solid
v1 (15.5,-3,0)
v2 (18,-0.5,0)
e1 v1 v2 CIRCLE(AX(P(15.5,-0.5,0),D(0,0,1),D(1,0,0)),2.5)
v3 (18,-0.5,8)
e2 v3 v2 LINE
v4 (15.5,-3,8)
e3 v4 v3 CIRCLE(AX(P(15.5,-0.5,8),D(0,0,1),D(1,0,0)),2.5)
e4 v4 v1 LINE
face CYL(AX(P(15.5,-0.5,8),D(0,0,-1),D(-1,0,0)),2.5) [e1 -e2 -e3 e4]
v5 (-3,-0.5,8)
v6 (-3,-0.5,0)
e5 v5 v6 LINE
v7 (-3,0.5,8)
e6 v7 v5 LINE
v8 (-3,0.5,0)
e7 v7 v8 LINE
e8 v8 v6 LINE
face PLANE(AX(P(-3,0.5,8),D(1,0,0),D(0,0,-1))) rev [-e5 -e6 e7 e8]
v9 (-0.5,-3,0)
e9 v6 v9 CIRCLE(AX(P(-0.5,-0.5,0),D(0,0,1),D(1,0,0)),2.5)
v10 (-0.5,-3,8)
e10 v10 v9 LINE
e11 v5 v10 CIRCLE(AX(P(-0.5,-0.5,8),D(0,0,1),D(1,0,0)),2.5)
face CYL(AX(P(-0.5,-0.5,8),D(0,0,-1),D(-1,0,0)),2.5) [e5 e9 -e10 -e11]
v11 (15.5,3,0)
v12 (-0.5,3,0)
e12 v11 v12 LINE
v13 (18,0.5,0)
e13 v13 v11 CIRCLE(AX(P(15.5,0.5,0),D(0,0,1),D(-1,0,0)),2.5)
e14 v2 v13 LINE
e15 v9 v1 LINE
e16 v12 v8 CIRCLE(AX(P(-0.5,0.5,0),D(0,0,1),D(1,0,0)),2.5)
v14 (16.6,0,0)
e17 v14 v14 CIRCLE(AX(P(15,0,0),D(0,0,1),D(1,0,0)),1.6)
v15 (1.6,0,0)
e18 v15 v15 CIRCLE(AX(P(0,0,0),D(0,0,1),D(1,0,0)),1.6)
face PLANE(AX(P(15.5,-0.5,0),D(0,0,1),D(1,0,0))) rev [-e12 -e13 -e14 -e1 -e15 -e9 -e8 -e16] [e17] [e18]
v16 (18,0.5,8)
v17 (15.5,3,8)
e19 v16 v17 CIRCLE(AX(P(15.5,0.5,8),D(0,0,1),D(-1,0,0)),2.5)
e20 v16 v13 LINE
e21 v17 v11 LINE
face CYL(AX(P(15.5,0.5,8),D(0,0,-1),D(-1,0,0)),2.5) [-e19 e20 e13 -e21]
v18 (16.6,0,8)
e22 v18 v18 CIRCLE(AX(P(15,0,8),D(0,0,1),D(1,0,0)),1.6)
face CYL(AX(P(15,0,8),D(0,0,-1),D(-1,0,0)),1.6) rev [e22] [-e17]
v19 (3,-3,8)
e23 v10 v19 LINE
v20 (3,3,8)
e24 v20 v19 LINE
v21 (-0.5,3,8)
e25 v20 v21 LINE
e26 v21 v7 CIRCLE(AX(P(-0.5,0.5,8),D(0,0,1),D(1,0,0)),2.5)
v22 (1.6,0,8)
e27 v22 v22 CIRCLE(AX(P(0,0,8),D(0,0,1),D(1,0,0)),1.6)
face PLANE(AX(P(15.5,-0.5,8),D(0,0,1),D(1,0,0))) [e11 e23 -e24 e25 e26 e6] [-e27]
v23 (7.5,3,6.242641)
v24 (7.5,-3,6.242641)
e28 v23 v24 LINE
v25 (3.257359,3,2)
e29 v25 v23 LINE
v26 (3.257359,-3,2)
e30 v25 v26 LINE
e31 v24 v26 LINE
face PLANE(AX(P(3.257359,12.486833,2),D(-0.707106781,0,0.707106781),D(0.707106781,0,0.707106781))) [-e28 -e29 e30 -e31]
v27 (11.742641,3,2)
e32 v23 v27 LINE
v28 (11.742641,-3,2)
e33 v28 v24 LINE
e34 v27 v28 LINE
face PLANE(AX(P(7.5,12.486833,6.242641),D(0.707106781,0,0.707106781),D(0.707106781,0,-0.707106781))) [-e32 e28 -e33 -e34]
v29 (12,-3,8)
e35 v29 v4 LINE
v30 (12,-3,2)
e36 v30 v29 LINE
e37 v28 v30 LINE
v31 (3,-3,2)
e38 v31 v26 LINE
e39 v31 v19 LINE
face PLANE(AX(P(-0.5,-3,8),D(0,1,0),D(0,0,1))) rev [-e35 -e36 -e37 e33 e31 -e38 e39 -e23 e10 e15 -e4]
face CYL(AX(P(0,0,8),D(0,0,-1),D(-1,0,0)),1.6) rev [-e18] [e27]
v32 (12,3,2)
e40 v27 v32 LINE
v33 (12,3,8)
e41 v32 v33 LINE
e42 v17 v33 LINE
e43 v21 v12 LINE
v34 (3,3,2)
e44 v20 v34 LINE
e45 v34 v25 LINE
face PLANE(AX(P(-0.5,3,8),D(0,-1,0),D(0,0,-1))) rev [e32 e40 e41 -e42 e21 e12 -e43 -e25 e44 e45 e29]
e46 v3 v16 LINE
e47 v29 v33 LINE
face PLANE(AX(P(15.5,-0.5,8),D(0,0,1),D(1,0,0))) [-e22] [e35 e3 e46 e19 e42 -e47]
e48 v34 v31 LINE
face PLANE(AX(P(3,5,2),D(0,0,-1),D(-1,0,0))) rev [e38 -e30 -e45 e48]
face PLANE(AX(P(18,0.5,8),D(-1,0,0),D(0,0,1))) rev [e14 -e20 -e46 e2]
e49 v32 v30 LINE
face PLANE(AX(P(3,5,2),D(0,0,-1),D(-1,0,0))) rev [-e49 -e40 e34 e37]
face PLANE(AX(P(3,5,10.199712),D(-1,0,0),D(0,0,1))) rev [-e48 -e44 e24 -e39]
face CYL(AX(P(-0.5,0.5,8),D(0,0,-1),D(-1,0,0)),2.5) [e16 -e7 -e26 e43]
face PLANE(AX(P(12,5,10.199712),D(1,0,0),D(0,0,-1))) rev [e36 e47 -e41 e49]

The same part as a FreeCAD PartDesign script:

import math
import FreeCAD as App
import Part
import Sketcher

V = App.Vector

doc = App.newDocument("Part")
body = doc.addObject("PartDesign::Body", "Body")

# Sketch on XY plane
sketch1 = body.newObject("Sketcher::SketchObject", "Sketch")
sketch1.AttachmentSupport = (doc.getObject("XY_Plane"), [""])
sketch1.MapMode = "FlatFace"
sketch1.addGeometry([
    Part.LineSegment(V(15.5, 3, 0), V(-0.5, 3, 0)),  # 0
    Part.ArcOfCircle(Part.Circle(V(-0.5, 0.5, 0), V(0, 0, 1), 2.5), math.radians(90), math.radians(180)),  # 1
    Part.LineSegment(V(-3, 0.5, 0), V(-3, -0.5, 0)),  # 2
    Part.ArcOfCircle(Part.Circle(V(-0.5, -0.5, 0), V(0, 0, 1), 2.5), math.radians(180), math.radians(270)),  # 3
    Part.LineSegment(V(-0.5, -3, 0), V(15.5, -3, 0)),  # 4
    Part.ArcOfCircle(Part.Circle(V(15.5, -0.5, 0), V(0, 0, 1), 2.5), math.radians(-90), math.radians(0)),  # 5
    Part.LineSegment(V(18, -0.5, 0), V(18, 0.5, 0)),  # 6
    Part.ArcOfCircle(Part.Circle(V(15.5, 0.5, 0), V(0, 0, 1), 2.5), math.radians(0), math.radians(90)),  # 7
    Part.Circle(V(15, 0, 0), V(0, 0, 1), 1.6),  # 8
    Part.Circle(V(0, 0, 0), V(0, 0, 1), 1.6),  # 9
], False)
sketch1.addConstraint([
    Sketcher.Constraint("Tangent", 0, 2, 1, 1),
    Sketcher.Constraint("Tangent", 1, 2, 2, 1),
    Sketcher.Constraint("Tangent", 2, 2, 3, 1),
    Sketcher.Constraint("Tangent", 3, 2, 4, 1),
    Sketcher.Constraint("Tangent", 4, 2, 5, 1),
    Sketcher.Constraint("Tangent", 5, 2, 6, 1),
    Sketcher.Constraint("Tangent", 6, 2, 7, 1),
    Sketcher.Constraint("Tangent", 7, 2, 0, 1),
    Sketcher.Constraint("Horizontal", 0),
    Sketcher.Constraint("Vertical", 2),
    Sketcher.Constraint("Horizontal", 4),
    Sketcher.Constraint("Vertical", 6),
    Sketcher.Constraint("Coincident", 9, 3, -1, 1),
    Sketcher.Constraint("Equal", 1, 3),
    Sketcher.Constraint("Equal", 3, 5),
    Sketcher.Constraint("Equal", 5, 7),
    Sketcher.Constraint("Equal", 8, 9),
    Sketcher.Constraint("PointOnObject", 8, 3, -1),
    Sketcher.Constraint("Diameter", 8, 3.2),
    Sketcher.Constraint("Radius", 1, 2.5),
    Sketcher.Constraint("DistanceX", 0, 2, 0, 1, 16.0),
    Sketcher.Constraint("DistanceY", 2, 2, 2, 1, 1.0),
    Sketcher.Constraint("DistanceX", -1, 1, 8, 3, 15.0),
    Sketcher.Constraint("DistanceY", -1, 1, 0, 2, 3.0),
    Sketcher.Constraint("DistanceX", 1, 2, -1, 1, 3.0),
])
pad1 = body.newObject("PartDesign::Pad", "Pad")
pad1.Profile = sketch1
pad1.Length = 8

# Sketch on XZ plane
sketch2 = body.newObject("Sketcher::SketchObject", "Sketch001")
sketch2.AttachmentSupport = (doc.getObject("XZ_Plane"), [""])
sketch2.MapMode = "FlatFace"
sketch2.AttachmentOffset = App.Placement(V(0, 0, 3), App.Rotation())
sketch2.addGeometry([
    Part.LineSegment(V(3, 10, 0), V(3, 2, 0)),
    Part.LineSegment(V(3, 2, 0), V(12, 2, 0)),
    Part.LineSegment(V(12, 2, 0), V(12, 10, 0)),
    Part.LineSegment(V(12, 10, 0), V(3, 10, 0)),
], False)
sketch2.addConstraint([
    Sketcher.Constraint("Coincident", 0, 2, 1, 1),
    Sketcher.Constraint("Coincident", 1, 2, 2, 1),
    Sketcher.Constraint("Coincident", 2, 2, 3, 1),
    Sketcher.Constraint("Coincident", 3, 2, 0, 1),
    Sketcher.Constraint("Vertical", 0),
    Sketcher.Constraint("Horizontal", 1),
    Sketcher.Constraint("Vertical", 2),
    Sketcher.Constraint("Horizontal", 3),
    Sketcher.Constraint("DistanceX", 1, 1, 1, 2, 9.0),
    Sketcher.Constraint("DistanceX", -1, 1, 0, 2, 3.0),
    Sketcher.Constraint("DistanceY", -1, 1, 0, 2, 2.0),
    Sketcher.Constraint("DistanceY", 0, 2, 0, 1, 8.199712),
])
pocket1 = body.newObject("PartDesign::Pocket", "Pocket")
pocket1.Profile = sketch2
pocket1.Length = 8

# Sketch on XZ plane
sketch3 = body.newObject("Sketcher::SketchObject", "Sketch002")
sketch3.AttachmentSupport = (doc.getObject("XZ_Plane"), [""])
sketch3.MapMode = "FlatFace"
sketch3.AttachmentOffset = App.Placement(V(0, 0, 3), App.Rotation())
sketch3.addGeometry([
    Part.LineSegment(V(8, 6, 0), V(3, 2, 0)),
    Part.LineSegment(V(3, 2, 0), V(12, 2, 0)),
    Part.LineSegment(V(12, 2, 0), V(8, 6, 0)),
], False)
sketch3.addConstraint([
    Sketcher.Constraint("Coincident", 0, 2, 1, 1),
    Sketcher.Constraint("Coincident", 1, 2, 2, 1),
    Sketcher.Constraint("Coincident", 2, 2, 0, 1),
    Sketcher.Constraint("Horizontal", 1),
    Sketcher.Constraint("Perpendicular", 0, 2),
    Sketcher.Constraint("Equal", 0, 2),
    Sketcher.Constraint("Distance", 0, 6.0),
    Sketcher.Constraint("DistanceY", -1, 1, 0, 2, 2.0),
    Sketcher.Constraint("DistanceX", -1, 1, 2, 2, 7.5),
])
pad2 = body.newObject("PartDesign::Pad", "Pad001")
pad2.Profile = sketch3
pad2.Length = 6
pad2.Reversed = True

doc.recompute()
